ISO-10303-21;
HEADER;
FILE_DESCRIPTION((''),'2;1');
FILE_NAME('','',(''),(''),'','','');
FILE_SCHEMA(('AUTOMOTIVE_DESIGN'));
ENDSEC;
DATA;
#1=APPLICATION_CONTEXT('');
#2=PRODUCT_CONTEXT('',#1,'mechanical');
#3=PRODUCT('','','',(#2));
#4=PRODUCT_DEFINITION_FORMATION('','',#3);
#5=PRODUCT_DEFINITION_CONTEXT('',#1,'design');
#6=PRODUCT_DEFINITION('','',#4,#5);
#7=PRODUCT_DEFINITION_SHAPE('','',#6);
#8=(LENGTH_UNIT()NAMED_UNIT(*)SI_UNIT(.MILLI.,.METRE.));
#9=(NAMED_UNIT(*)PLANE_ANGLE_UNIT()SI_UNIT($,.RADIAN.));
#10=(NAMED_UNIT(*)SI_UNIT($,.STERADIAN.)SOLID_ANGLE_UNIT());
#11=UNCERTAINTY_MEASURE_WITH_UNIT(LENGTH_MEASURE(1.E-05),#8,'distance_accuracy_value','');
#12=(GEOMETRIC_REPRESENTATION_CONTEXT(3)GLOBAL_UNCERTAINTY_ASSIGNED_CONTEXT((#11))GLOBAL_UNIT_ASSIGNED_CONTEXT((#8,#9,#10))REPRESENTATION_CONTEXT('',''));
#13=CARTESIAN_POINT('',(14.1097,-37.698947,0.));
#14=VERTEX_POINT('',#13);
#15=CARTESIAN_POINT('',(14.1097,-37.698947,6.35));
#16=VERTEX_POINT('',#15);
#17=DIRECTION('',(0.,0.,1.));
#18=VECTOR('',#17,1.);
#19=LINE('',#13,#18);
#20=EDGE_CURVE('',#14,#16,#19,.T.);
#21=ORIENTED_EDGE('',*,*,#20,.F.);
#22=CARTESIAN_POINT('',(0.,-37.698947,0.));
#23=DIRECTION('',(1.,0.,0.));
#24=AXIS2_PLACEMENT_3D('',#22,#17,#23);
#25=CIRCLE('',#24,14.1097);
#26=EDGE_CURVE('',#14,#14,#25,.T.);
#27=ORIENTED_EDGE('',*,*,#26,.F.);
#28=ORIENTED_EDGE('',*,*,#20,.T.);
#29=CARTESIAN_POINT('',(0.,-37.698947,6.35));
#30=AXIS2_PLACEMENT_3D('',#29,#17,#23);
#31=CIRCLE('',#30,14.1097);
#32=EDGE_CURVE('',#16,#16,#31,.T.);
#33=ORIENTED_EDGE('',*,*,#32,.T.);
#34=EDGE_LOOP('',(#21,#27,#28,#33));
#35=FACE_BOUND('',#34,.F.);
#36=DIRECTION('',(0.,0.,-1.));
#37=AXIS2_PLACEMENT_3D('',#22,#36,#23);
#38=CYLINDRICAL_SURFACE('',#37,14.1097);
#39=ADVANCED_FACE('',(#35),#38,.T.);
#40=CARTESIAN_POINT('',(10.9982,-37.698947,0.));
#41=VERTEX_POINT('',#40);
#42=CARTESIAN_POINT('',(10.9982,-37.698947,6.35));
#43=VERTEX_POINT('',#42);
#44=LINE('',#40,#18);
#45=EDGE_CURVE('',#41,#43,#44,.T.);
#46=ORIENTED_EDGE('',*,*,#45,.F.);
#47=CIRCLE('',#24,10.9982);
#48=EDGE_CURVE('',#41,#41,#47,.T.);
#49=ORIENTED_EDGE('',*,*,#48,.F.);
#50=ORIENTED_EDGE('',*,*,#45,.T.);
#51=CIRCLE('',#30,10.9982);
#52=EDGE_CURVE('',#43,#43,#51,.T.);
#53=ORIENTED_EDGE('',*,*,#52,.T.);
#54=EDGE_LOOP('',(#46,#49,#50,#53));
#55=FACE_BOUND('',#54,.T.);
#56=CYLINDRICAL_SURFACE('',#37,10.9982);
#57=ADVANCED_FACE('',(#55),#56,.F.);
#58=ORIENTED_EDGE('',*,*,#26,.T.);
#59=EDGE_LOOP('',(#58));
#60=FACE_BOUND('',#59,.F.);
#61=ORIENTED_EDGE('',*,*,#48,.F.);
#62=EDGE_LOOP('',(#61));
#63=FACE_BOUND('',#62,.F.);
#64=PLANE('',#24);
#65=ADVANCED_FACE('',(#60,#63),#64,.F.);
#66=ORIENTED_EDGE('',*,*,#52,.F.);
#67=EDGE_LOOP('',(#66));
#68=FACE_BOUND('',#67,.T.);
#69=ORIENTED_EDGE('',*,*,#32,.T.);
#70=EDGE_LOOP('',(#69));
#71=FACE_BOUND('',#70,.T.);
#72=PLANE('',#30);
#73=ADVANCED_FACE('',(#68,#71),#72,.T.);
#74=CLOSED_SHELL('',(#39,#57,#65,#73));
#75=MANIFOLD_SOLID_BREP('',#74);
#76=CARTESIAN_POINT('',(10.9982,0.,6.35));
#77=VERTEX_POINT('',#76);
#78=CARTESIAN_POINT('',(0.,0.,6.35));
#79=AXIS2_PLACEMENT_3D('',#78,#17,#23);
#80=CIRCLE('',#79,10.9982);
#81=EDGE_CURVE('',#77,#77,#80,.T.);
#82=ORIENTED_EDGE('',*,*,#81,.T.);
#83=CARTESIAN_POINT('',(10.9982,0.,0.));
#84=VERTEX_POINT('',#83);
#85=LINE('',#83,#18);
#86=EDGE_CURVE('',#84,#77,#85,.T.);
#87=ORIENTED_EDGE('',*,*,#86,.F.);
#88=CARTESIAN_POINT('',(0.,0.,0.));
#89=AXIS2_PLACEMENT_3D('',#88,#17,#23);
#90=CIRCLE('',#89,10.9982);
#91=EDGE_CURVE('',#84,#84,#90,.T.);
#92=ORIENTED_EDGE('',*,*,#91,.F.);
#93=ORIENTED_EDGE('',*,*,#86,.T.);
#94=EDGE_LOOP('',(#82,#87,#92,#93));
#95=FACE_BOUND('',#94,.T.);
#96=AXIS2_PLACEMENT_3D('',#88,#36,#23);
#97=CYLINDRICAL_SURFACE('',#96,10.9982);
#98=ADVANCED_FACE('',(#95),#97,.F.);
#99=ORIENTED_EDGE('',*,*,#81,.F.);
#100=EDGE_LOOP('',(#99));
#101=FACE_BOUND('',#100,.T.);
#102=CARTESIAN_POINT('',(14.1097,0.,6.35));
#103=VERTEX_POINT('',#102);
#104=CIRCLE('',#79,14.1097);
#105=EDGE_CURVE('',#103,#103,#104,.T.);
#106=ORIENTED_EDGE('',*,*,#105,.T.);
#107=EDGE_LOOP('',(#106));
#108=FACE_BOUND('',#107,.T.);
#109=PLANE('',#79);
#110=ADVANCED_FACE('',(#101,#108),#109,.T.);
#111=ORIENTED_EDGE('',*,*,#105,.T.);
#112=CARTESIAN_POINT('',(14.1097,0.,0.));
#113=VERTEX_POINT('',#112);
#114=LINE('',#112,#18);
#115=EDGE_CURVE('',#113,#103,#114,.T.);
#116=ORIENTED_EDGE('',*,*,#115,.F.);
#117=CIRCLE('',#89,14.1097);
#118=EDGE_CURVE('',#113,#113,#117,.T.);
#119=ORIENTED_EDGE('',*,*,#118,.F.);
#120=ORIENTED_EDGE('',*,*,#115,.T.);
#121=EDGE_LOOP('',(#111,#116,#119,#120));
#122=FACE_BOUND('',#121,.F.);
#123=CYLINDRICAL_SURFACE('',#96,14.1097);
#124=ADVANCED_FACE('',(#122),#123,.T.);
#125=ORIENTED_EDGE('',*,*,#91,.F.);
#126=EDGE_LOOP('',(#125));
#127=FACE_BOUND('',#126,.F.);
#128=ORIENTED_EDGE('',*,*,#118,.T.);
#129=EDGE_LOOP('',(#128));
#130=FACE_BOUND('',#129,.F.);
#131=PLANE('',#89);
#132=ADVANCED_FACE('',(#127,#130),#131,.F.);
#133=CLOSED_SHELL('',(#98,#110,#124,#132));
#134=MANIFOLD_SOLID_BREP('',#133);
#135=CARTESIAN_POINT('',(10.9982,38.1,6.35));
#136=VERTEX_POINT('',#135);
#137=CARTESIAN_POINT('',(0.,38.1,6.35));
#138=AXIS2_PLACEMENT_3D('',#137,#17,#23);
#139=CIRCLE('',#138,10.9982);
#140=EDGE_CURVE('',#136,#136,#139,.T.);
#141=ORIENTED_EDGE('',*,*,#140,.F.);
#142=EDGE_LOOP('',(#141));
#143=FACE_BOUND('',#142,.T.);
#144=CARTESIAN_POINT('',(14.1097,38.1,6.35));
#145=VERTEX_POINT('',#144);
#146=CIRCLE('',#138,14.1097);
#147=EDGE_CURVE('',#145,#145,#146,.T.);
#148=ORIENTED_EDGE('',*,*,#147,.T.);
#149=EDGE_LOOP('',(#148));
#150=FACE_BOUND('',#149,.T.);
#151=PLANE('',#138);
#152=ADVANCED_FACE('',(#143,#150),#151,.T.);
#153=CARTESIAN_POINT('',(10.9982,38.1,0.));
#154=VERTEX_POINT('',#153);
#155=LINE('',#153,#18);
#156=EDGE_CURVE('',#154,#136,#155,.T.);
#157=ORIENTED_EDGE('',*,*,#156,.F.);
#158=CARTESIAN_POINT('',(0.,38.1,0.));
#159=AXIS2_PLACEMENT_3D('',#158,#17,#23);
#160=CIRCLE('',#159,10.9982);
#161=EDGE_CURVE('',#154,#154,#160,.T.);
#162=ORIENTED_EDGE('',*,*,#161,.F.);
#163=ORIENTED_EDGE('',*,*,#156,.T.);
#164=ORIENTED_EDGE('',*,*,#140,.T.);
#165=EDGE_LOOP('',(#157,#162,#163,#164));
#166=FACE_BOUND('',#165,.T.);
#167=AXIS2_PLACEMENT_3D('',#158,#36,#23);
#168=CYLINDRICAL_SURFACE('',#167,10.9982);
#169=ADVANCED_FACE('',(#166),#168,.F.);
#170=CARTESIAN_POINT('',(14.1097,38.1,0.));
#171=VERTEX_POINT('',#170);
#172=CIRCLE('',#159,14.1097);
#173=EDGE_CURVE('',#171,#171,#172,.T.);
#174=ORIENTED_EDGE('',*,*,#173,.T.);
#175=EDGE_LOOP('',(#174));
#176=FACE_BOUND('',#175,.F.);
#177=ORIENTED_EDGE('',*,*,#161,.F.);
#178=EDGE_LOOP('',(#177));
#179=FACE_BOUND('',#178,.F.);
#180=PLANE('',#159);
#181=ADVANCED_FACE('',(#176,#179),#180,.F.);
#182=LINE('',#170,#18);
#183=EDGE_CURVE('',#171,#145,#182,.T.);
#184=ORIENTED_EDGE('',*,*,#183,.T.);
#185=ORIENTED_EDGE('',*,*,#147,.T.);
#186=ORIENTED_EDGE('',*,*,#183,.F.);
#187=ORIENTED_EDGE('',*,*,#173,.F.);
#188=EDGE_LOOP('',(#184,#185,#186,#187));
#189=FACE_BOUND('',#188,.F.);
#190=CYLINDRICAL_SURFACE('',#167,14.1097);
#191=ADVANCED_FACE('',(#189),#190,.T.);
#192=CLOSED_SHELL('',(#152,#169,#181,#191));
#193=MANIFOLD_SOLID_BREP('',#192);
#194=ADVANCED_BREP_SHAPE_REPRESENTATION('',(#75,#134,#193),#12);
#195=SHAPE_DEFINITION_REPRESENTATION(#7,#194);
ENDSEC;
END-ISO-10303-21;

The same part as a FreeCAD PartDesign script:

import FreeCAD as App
import Part
import Sketcher
Q = App.Units.Quantity

doc = App.newDocument("Part")
params = doc.addObject("Spreadsheet::Sheet", "Params")
for row, (alias, value) in enumerate([
    ("sketch1_diameter", "1.111 in"),
    ("sketch1_diameter2", "0.866 in"),
    ("pad1_length", "0.25 in"),
], start=1):
    params.set(f"A{row}", alias)
    params.set(f"B{row}", "=" + value)
    params.setAlias(f"B{row}", alias)

body = doc.addObject("PartDesign::Body", "Body")
body.AllowCompound = True

# Sketch on XY plane
sketch1 = body.newObject("Sketcher::SketchObject", "Sketch")
sketch1.AttachmentSupport = (doc.getObject("XY_Plane"), [""])
sketch1.MapMode = "FlatFace"
sketch1.addGeometry([
    Part.Circle(App.Vector(0, 38.1, 0), App.Vector(0, 0, 1), 14.1097),  # 0
    Part.Circle(App.Vector(0, 38.1, 0), App.Vector(0, 0, 1), 10.9982),  # 1
    Part.Circle(App.Vector(0, -37.698947, 0), App.Vector(0, 0, 1), 14.1097),  # 2
    Part.Circle(App.Vector(0, -37.698947, 0), App.Vector(0, 0, 1), 10.9982),  # 3
    Part.Circle(App.Vector(0, 0, 0), App.Vector(0, 0, 1), 14.1097),  # 4
    Part.Circle(App.Vector(0, 0, 0), App.Vector(0, 0, 1), 10.9982),  # 5
], False)
sketch1.addConstraint([
    Sketcher.Constraint("Coincident", 4, 3, -1, 1),
    Sketcher.Constraint("Coincident", 5, 3, -1, 1),
    Sketcher.Constraint("Coincident", 1, 3, 0, 3),
    Sketcher.Constraint("Coincident", 3, 3, 2, 3),
    Sketcher.Constraint("Equal", 0, 2),
    Sketcher.Constraint("Equal", 1, 3),
    Sketcher.Constraint("Equal", 2, 4),
    Sketcher.Constraint("Equal", 3, 5),
    Sketcher.Constraint("PointOnObject", 0, 3, -2),
    Sketcher.Constraint("PointOnObject", 2, 3, -2),
    Sketcher.Constraint("Diameter", 0, Q("1.111 in")),
    Sketcher.Constraint("Diameter", 1, Q("0.866 in")),
    Sketcher.Constraint("DistanceY", -1, 1, 0, 3, Q("1.5 in")),
    Sketcher.Constraint("DistanceY", 2, 3, -1, 1, 37.698947),
])
sketch1.setExpression("Constraints[10]", "Params.sketch1_diameter")
sketch1.setExpression("Constraints[11]", "Params.sketch1_diameter2")
pad1 = body.newObject("PartDesign::Pad", "Pad")
pad1.Profile = sketch1
pad1.setExpression("Length", "Params.pad1_length")

doc.recompute()
